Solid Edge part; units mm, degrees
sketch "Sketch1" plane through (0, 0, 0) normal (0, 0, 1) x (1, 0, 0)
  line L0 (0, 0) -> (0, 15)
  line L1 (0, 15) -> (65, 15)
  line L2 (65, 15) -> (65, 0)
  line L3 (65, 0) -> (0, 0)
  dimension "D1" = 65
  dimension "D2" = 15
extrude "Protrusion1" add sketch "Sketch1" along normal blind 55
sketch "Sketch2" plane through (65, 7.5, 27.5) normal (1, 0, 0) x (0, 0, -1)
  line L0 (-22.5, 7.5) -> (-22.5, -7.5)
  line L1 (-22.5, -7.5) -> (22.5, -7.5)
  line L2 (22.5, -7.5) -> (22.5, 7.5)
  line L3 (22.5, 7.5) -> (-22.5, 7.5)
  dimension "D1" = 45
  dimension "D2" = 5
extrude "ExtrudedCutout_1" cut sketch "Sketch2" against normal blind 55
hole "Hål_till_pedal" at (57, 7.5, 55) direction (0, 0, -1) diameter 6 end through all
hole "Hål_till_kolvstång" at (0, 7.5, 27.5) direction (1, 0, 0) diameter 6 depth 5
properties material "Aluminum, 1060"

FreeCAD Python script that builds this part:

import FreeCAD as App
import Part
import Sketcher
Q = App.Units.Quantity

doc = App.newDocument("Part")
params = doc.addObject("Spreadsheet::Sheet", "Params")
for row, (alias, value) in enumerate([
    ("sketch1_width", "65 mm"),
    ("sketch1_height", "15 mm"),
    ("pad1_length", "55 mm"),
    ("sketch2_width", "15 mm"),
    ("sketch2_height", "45 mm"),
    ("pocket1_length", "55 mm"),
    ("sketch3_diameter", "6 mm"),
    ("hole_diameter", "6 mm"),
    ("sketch4_diameter", "6 mm"),
    ("hole2_diameter", "6 mm"),
    ("hole2_depth", "5 mm"),
], start=1):
    params.set(f"A{row}", alias)
    params.set(f"B{row}", "=" + value)
    params.setAlias(f"B{row}", alias)

body = doc.addObject("PartDesign::Body", "Body")

sketch1 = body.newObject("Sketcher::SketchObject", "Sketch")
sketch1.AttachmentSupport = (doc.getObject("XY_Plane"), [""])
sketch1.MapMode = "FlatFace"
sketch1.addGeometry([
    Part.LineSegment(App.Vector(0, 15, 0), App.Vector(0, 0, 0)),
    Part.LineSegment(App.Vector(0, 0, 0), App.Vector(65, 0, 0)),
    Part.LineSegment(App.Vector(65, 0, 0), App.Vector(65, 15, 0)),
    Part.LineSegment(App.Vector(65, 15, 0), App.Vector(0, 15, 0)),
], False)
sketch1.addConstraint([
    Sketcher.Constraint("Coincident", 0, 2, 1, 1),
    Sketcher.Constraint("Coincident", 1, 2, 2, 1),
    Sketcher.Constraint("Coincident", 2, 2, 3, 1),
    Sketcher.Constraint("Coincident", 3, 2, 0, 1),
    Sketcher.Constraint("Vertical", 0),
    Sketcher.Constraint("Horizontal", 1),
    Sketcher.Constraint("Vertical", 2),
    Sketcher.Constraint("Horizontal", 3),
    Sketcher.Constraint("Coincident", 0, 2, -1, 1),
    Sketcher.Constraint("DistanceX", 1, 1, 1, 2, Q("65 mm")),
    Sketcher.Constraint("DistanceY", 0, 2, 0, 1, Q("15 mm")),
])
sketch1.setExpression("Constraints[9]", "Params.sketch1_width")
sketch1.setExpression("Constraints[10]", "Params.sketch1_height")
pad1 = body.newObject("PartDesign::Pad", "Pad")
pad1.Profile = sketch1
pad1.setExpression("Length", "Params.pad1_length")

sketch2 = body.newObject("Sketcher::SketchObject", "Sketch001")
sketch2.AttachmentSupport = (doc.getObject("YZ_Plane"), [""])
sketch2.MapMode = "FlatFace"
sketch2.AttachmentOffset = App.Placement(App.Vector(0, 0, 65), App.Rotation())
sketch2.addGeometry([
    Part.LineSegment(App.Vector(15, 5, 0), App.Vector(15, 50, 0)),
    Part.LineSegment(App.Vector(15, 50, 0), App.Vector(0, 50, 0)),
    Part.LineSegment(App.Vector(0, 50, 0), App.Vector(0, 5, 0)),
    Part.LineSegment(App.Vector(0, 5, 0), App.Vector(15, 5, 0)),
], False)
sketch2.addConstraint([
    Sketcher.Constraint("Coincident", 0, 2, 1, 1),
    Sketcher.Constraint("Coincident", 1, 2, 2, 1),
    Sketcher.Constraint("Coincident", 2, 2, 3, 1),
    Sketcher.Constraint("Coincident", 3, 2, 0, 1),
    Sketcher.Constraint("Vertical", 0),
    Sketcher.Constraint("Horizontal", 1),
    Sketcher.Constraint("Vertical", 2),
    Sketcher.Constraint("Horizontal", 3),
    Sketcher.Constraint("PointOnObject", 1, 2, -2),
    Sketcher.Constraint("DistanceX", 1, 2, 1, 1, Q("15 mm")),
    Sketcher.Constraint("DistanceY", 0, 1, 0, 2, Q("45 mm")),
    Sketcher.Constraint("DistanceY", -1, 1, 0, 2, Q("50 mm")),
])
sketch2.setExpression("Constraints[9]", "Params.sketch2_width")
sketch2.setExpression("Constraints[10]", "Params.sketch2_height")
pocket1 = body.newObject("PartDesign::Pocket", "Pocket")
pocket1.Profile = sketch2
pocket1.setExpression("Length", "Params.pocket1_length")

sketch3 = body.newObject("Sketcher::SketchObject", "Sketch002")
sketch3.AttachmentSupport = (doc.getObject("XY_Plane"), [""])
sketch3.MapMode = "FlatFace"
sketch3.AttachmentOffset = App.Placement(App.Vector(0, 0, 55), App.Rotation())
sketch3.addGeometry(Part.Circle(App.Vector(57, 7.5, 0), App.Vector(0, 0, 1), 3), False)
sketch3.addConstraint([
    Sketcher.Constraint("Diameter", 0, Q("6 mm")),
    Sketcher.Constraint("DistanceX", -1, 1, 0, 3, Q("57 mm")),
    Sketcher.Constraint("DistanceY", -1, 1, 0, 3, Q("7.5 mm")),
])
sketch3.setExpression("Constraints[0]", "Params.sketch3_diameter")
doc.recompute()
hole = body.newObject("PartDesign::Hole", "Hole")
hole.Profile = sketch3
hole.ThreadType = "None"
hole.setExpression("Diameter", "Params.hole_diameter")
hole.DepthType = "ThroughAll"

sketch4 = body.newObject("Sketcher::SketchObject", "Sketch003")
sketch4.AttachmentSupport = (doc.getObject("YZ_Plane"), [""])
sketch4.MapMode = "FlatFace"
sketch4.addGeometry(Part.Circle(App.Vector(7.5, 27.5, 0), App.Vector(0, 0, 1), 3), False)
sketch4.addConstraint([
    Sketcher.Constraint("Diameter", 0, Q("6 mm")),
    Sketcher.Constraint("DistanceX", -1, 1, 0, 3, Q("7.5 mm")),
    Sketcher.Constraint("DistanceY", -1, 1, 0, 3, Q("27.5 mm")),
])
sketch4.setExpression("Constraints[0]", "Params.sketch4_diameter")
doc.recompute()
hole2 = body.newObject("PartDesign::Hole", "Hole001")
hole2.Profile = sketch4
hole2.ThreadType = "None"
hole2.setExpression("Diameter", "Params.hole2_diameter")
hole2.DepthType = "Dimension"
hole2.setExpression("Depth", "Params.hole2_depth")
hole2.DrillPoint = "Flat"
hole2.Reversed = True

doc.recompute()
